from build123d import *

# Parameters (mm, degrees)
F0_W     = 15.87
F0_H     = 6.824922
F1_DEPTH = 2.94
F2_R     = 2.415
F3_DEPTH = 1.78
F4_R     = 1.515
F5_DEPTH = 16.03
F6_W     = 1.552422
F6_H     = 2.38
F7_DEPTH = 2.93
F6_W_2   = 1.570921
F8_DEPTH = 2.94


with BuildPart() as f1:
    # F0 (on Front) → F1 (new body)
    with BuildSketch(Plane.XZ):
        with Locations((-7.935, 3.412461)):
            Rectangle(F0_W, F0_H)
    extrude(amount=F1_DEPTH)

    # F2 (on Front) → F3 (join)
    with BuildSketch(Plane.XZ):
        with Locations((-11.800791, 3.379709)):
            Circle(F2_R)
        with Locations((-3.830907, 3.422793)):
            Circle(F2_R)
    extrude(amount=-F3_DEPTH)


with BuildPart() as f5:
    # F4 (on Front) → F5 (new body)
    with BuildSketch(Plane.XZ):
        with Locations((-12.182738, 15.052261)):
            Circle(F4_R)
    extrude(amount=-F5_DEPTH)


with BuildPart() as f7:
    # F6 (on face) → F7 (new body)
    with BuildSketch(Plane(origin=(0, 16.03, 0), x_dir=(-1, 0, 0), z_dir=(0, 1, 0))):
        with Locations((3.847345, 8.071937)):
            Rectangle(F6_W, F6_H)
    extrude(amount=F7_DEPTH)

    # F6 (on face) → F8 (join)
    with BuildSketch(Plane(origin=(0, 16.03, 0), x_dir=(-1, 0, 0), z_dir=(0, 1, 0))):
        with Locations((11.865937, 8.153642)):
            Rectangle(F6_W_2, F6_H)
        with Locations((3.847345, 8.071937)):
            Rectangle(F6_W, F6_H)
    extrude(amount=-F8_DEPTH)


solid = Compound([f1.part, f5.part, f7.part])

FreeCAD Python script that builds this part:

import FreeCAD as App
import Part
import Sketcher

V = App.Vector


def add_polygon(sketch, points):
    """Adds a closed chain of lines whose ends are joined by coincident constraints."""
    first, n = sketch.GeometryCount, len(points)
    for a, b in zip(points, points[1:] + points[:1]):
        sketch.addGeometry(Part.LineSegment(App.Vector(*a, 0), App.Vector(*b, 0)), False)
    for i in range(n):
        sketch.addConstraint(Sketcher.Constraint("Coincident", first + i, 2, first + (i + 1) % n, 1))

doc = App.newDocument("Part")
body = doc.addObject("PartDesign::Body", "Body")

# Sketch on XZ plane
sketch1 = doc.addObject("Sketcher::SketchObject", "Sketch")
body.addObject(sketch1)
sketch1.AttachmentSupport = (doc.XZ_Plane, [""])
sketch1.MapMode = "FlatFace"
add_polygon(sketch1, [(-16, 7), (-16, 0), (0, 0), (0, 7)])  # lines 0-3
sketch1.addConstraint(Sketcher.Constraint("Vertical", 0))
sketch1.addConstraint(Sketcher.Constraint("Horizontal", 1))
sketch1.addConstraint(Sketcher.Constraint("Vertical", 2))
sketch1.addConstraint(Sketcher.Constraint("Horizontal", 3))
sketch1.addConstraint(Sketcher.Constraint("Coincident", 1, 2, -1, 1))
sketch1.addConstraint(Sketcher.Constraint("DistanceX", 1, 1, 1, 2, 15.87))
sketch1.addConstraint(Sketcher.Constraint("DistanceY", 0, 2, 0, 1, 6.824922))
pad1 = doc.addObject("PartDesign::Pad", "Pad")
body.addObject(pad1)
pad1.Profile = sketch1
pad1.Length = 2.94

# Sketch on XZ plane
sketch2 = doc.addObject("Sketcher::SketchObject", "Sketch001")
body.addObject(sketch2)
sketch2.AttachmentSupport = (doc.XZ_Plane, [""])
sketch2.MapMode = "FlatFace"
sketch2.addGeometry(Part.Circle(V(-11.8, 3.4, 0), V(0, 0, 1), 2.4), False)
sketch2.addGeometry(Part.Circle(V(-3.8, 3.4, 0), V(0, 0, 1), 2.4), False)
sketch2.addConstraint(Sketcher.Constraint("Equal", 0, 1))
sketch2.addConstraint(Sketcher.Constraint("Diameter", 0, 4.83))
sketch2.addConstraint(Sketcher.Constraint("DistanceX", 0, 3, -1, 1, 11.800791))
sketch2.addConstraint(Sketcher.Constraint("DistanceY", -1, 1, 0, 3, 3.379709))
sketch2.addConstraint(Sketcher.Constraint("DistanceX", 1, 3, -1, 1, 3.830907))
sketch2.addConstraint(Sketcher.Constraint("DistanceY", -1, 1, 1, 3, 3.422793))
pad2 = doc.addObject("PartDesign::Pad", "Pad001")
body.addObject(pad2)
pad2.Profile = sketch2
pad2.Length = 1.78
pad2.Reversed = True
body2 = doc.addObject("PartDesign::Body", "Body001")

# Sketch on XZ plane
sketch3 = doc.addObject("Sketcher::SketchObject", "Sketch002")
body2.addObject(sketch3)
sketch3.AttachmentSupport = (doc.getObject("XZ_Plane001"), [""])
sketch3.MapMode = "FlatFace"
sketch3.addGeometry(Part.Circle(V(-12.2, 15.1, 0), V(0, 0, 1), 1.5), False)
sketch3.addConstraint(Sketcher.Constraint("Diameter", 0, 3.03))
sketch3.addConstraint(Sketcher.Constraint("DistanceY", -1, 1, 0, 3, 15.052261))
sketch3.addConstraint(Sketcher.Constraint("DistanceX", 0, 3, -1, 1, 12.182738))
pad3 = doc.addObject("PartDesign::Pad", "Pad002")
body2.addObject(pad3)
pad3.Profile = sketch3
pad3.Length = 16.03
pad3.Reversed = True
body3 = doc.addObject("PartDesign::Body", "Body002")
body3.AllowCompound = True

# Sketch on XZ plane
sketch4 = doc.addObject("Sketcher::SketchObject", "Sketch003")
body3.addObject(sketch4)
sketch4.AttachmentSupport = (doc.getObject("XZ_Plane002"), [""])
sketch4.MapMode = "FlatFace"
sketch4.AttachmentOffset = App.Placement(V(0, 0, -16.03), App.Rotation())
add_polygon(sketch4, [(-3.1, 9.3), (-3.1, 6.9), (-4.6, 6.9), (-4.6, 9.3)])  # lines 0-3
sketch4.addConstraint(Sketcher.Constraint("Vertical", 0))
sketch4.addConstraint(Sketcher.Constraint("Horizontal", 1))
sketch4.addConstraint(Sketcher.Constraint("Vertical", 2))
sketch4.addConstraint(Sketcher.Constraint("Horizontal", 3))
sketch4.addConstraint(Sketcher.Constraint("DistanceY", 0, 2, 0, 1, 2.38))
sketch4.addConstraint(Sketcher.Constraint("DistanceX", 1, 2, 1, 1, 1.552422))
sketch4.addConstraint(Sketcher.Constraint("DistanceX", 0, 2, -1, 1, 3.071134))
sketch4.addConstraint(Sketcher.Constraint("DistanceY", -1, 1, 0, 2, 6.881937))
pad4 = doc.addObject("PartDesign::Pad", "Pad003")
body3.addObject(pad4)
pad4.Profile = sketch4
pad4.Length = 2.93
pad4.Reversed = True

# Sketch on XZ plane
sketch5 = doc.addObject("Sketcher::SketchObject", "Sketch004")
body3.addObject(sketch5)
sketch5.AttachmentSupport = (doc.getObject("XZ_Plane002"), [""])
sketch5.MapMode = "FlatFace"
sketch5.AttachmentOffset = App.Placement(V(0, 0, -16.03), App.Rotation())
add_polygon(sketch5, [(-11.1, 9.3), (-11.1, 7), (-12.7, 7), (-12.7, 9.3)])  # lines 0-3
add_polygon(sketch5, [(-3.1, 9.3), (-3.1, 6.9), (-4.6, 6.9), (-4.6, 9.3)])  # lines 4-7
sketch5.addConstraint(Sketcher.Constraint("Vertical", 0))
sketch5.addConstraint(Sketcher.Constraint("Horizontal", 1))
sketch5.addConstraint(Sketcher.Constraint("Vertical", 2))
sketch5.addConstraint(Sketcher.Constraint("Horizontal", 3))
sketch5.addConstraint(Sketcher.Constraint("Vertical", 4))
sketch5.addConstraint(Sketcher.Constraint("Horizontal", 5))
sketch5.addConstraint(Sketcher.Constraint("Vertical", 6))
sketch5.addConstraint(Sketcher.Constraint("Horizontal", 7))
sketch5.addConstraint(Sketcher.Constraint("Equal", 2, 4))
sketch5.addConstraint(Sketcher.Constraint("DistanceY", 0, 2, 0, 1, 2.38))
sketch5.addConstraint(Sketcher.Constraint("DistanceX", 1, 2, 1, 1, 1.570921))
sketch5.addConstraint(Sketcher.Constraint("DistanceX", 5, 2, 5, 1, 1.552422))
sketch5.addConstraint(Sketcher.Constraint("DistanceY", -1, 1, 2, 2, 9.343642))
sketch5.addConstraint(Sketcher.Constraint("DistanceX", 0, 2, 5, 2, 6.45692))
sketch5.addConstraint(Sketcher.Constraint("DistanceX", 0, 2, -1, 1, 11.080476))
sketch5.addConstraint(Sketcher.Constraint("DistanceY", -1, 1, 4, 2, 6.881937))
pad5 = doc.addObject("PartDesign::Pad", "Pad004")
body3.addObject(pad5)
pad5.Profile = sketch5
pad5.Length = 2.94

doc.recompute()
